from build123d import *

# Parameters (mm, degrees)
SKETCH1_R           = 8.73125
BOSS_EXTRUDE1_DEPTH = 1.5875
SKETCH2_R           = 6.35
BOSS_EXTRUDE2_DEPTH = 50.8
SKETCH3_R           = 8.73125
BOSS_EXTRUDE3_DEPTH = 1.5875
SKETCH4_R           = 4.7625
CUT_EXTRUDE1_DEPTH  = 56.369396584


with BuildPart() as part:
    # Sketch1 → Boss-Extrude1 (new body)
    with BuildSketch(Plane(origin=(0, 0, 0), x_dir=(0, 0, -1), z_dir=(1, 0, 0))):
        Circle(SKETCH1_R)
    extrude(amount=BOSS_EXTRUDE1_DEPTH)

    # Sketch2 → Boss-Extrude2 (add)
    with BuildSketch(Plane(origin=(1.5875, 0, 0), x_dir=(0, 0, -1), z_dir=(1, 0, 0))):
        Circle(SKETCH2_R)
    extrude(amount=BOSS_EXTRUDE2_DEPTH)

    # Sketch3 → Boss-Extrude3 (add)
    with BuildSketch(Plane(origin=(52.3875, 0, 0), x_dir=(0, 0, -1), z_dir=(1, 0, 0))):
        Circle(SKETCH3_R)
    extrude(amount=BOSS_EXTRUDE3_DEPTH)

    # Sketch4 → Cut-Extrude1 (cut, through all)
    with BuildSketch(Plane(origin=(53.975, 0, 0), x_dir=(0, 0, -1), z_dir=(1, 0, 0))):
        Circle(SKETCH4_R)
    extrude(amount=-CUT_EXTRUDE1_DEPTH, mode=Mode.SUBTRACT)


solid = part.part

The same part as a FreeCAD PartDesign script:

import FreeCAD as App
import Part
import Sketcher

V = App.Vector
Q = App.Units.Quantity

doc = App.newDocument("Part")
body = doc.addObject("PartDesign::Body", "Body")

sketch1 = body.newObject("Sketcher::SketchObject", "Sketch")
sketch1.AttachmentSupport = (doc.getObject("YZ_Plane"), [""])
sketch1.MapMode = "FlatFace"
sketch1.addGeometry(Part.Circle(V(0, 0, 0), V(0, 0, 1), 9), False)
sketch1.addConstraint(Sketcher.Constraint("Coincident", 0, 3, -1, 1))
sketch1.addConstraint(Sketcher.Constraint("Diameter", 0, Q("0.6875 in")))
pad1 = body.newObject("PartDesign::Pad", "Pad")
pad1.Profile = sketch1
pad1.Length = Q("0.0625 in")

sketch2 = body.newObject("Sketcher::SketchObject", "Sketch001")
sketch2.AttachmentSupport = (doc.getObject("YZ_Plane"), [""])
sketch2.MapMode = "FlatFace"
sketch2.AttachmentOffset = App.Placement(V(0, 0, 0.0625 * 25.4), App.Rotation())
sketch2.addGeometry(Part.Circle(V(0, 0, 0), V(0, 0, 1), 6), False)
sketch2.addConstraint(Sketcher.Constraint("Coincident", 0, 3, -1, 1))
sketch2.addConstraint(Sketcher.Constraint("Diameter", 0, Q("0.5 in")))
pad2 = body.newObject("PartDesign::Pad", "Pad001")
pad2.Profile = sketch2
pad2.Length = Q("2 in")

sketch3 = body.newObject("Sketcher::SketchObject", "Sketch002")
sketch3.AttachmentSupport = (doc.getObject("YZ_Plane"), [""])
sketch3.MapMode = "FlatFace"
sketch3.AttachmentOffset = App.Placement(V(0, 0, 2.0625 * 25.4), App.Rotation())
sketch3.addGeometry(Part.Circle(V(0, 0, 0), V(0, 0, 1), 9), False)
sketch3.addConstraint(Sketcher.Constraint("Coincident", 0, 3, -1, 1))
sketch3.addConstraint(Sketcher.Constraint("Diameter", 0, Q("0.6875 in")))
pad3 = body.newObject("PartDesign::Pad", "Pad002")
pad3.Profile = sketch3
pad3.Length = Q("0.0625 in")

sketch4 = body.newObject("Sketcher::SketchObject", "Sketch003")
sketch4.AttachmentSupport = (doc.getObject("YZ_Plane"), [""])
sketch4.MapMode = "FlatFace"
sketch4.AttachmentOffset = App.Placement(V(0, 0, 2.125 * 25.4), App.Rotation())
sketch4.addGeometry(Part.Circle(V(0, 0, 0), V(0, 0, 1), 4.8), False)
sketch4.addConstraint(Sketcher.Constraint("Coincident", 0, 3, -1, 1))
sketch4.addConstraint(Sketcher.Constraint("Diameter", 0, Q("0.375 in")))
pocket1 = body.newObject("PartDesign::Pocket", "Pocket")
pocket1.Profile = sketch4
pocket1.Type = "ThroughAll"

doc.recompute()
